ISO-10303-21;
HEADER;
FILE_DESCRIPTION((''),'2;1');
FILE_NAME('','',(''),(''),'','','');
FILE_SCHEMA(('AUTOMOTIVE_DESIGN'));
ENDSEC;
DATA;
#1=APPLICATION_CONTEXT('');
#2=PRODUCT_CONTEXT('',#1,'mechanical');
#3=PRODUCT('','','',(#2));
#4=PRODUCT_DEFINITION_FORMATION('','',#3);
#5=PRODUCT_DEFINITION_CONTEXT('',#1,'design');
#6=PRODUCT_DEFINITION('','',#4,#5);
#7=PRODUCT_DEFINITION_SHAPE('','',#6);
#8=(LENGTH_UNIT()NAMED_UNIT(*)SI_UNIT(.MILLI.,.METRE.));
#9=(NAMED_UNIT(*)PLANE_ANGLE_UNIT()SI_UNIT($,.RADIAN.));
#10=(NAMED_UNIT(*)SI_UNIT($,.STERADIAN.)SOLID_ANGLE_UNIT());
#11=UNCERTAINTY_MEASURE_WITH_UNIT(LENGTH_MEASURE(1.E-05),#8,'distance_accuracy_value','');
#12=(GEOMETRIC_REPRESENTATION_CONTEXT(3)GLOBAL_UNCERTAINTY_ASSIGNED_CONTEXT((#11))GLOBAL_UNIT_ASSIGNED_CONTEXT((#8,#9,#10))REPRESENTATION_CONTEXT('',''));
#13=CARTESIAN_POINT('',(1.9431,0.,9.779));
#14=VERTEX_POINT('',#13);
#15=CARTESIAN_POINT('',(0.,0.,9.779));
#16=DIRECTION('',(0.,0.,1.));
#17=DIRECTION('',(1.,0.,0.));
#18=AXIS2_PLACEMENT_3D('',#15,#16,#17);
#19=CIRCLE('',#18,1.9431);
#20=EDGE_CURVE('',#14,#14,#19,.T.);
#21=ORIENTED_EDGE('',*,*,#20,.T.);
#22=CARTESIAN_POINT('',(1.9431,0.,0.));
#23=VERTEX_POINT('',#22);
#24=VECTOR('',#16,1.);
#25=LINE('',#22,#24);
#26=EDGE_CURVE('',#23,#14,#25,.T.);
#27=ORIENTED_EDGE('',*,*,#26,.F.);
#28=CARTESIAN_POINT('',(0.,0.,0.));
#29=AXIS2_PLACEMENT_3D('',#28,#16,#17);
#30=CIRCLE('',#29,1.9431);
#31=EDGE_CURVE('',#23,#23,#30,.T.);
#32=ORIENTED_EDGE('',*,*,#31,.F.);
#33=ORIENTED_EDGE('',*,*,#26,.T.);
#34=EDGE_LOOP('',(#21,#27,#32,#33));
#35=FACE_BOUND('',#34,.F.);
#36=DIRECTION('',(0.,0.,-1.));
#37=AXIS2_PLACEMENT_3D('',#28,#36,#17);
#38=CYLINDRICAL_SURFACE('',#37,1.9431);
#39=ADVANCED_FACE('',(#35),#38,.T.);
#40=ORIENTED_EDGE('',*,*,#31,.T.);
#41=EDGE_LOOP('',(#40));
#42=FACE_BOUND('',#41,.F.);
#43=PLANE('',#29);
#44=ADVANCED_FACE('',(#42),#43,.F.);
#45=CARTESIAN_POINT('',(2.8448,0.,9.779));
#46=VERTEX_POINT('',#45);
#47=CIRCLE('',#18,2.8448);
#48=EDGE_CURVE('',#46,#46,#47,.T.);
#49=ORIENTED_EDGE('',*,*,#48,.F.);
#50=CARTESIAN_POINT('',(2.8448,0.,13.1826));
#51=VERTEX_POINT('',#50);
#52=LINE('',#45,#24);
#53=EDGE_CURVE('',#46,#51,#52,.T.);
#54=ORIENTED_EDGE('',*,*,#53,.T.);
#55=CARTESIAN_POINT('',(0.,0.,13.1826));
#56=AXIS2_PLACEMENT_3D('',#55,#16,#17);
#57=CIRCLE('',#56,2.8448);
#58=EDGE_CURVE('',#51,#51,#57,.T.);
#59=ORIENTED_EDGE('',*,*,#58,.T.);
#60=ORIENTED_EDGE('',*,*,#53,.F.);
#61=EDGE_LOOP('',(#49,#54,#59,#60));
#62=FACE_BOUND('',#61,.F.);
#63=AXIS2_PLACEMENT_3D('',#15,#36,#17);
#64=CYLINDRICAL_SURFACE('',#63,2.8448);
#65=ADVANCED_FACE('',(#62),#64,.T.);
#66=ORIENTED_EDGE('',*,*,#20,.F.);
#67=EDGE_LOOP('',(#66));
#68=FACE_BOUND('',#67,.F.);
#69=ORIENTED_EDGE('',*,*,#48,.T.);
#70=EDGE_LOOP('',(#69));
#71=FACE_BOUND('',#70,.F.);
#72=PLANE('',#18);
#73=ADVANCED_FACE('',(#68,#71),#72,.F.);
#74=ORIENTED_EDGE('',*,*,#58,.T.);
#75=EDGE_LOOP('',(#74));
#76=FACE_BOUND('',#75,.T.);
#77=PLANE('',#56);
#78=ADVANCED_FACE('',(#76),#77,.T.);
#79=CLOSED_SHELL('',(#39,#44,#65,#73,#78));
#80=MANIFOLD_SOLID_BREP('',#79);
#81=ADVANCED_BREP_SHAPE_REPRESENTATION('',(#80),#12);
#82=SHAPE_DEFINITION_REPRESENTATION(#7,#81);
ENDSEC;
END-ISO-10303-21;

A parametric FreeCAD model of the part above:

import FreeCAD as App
import Part
import Sketcher
Q = App.Units.Quantity

doc = App.newDocument("Part")
body = doc.addObject("PartDesign::Body", "Body")

sketch1 = doc.addObject("Sketcher::SketchObject", "Sketch")
body.addObject(sketch1)
sketch1.AttachmentSupport = (doc.XY_Plane, [""])
sketch1.MapMode = "FlatFace"
sketch1.addGeometry(Part.Circle(App.Vector(0, 0, 0), App.Vector(0, 0, 1), 1.9431), False)
sketch1.addConstraint(Sketcher.Constraint("Coincident", 0, 3, -1, 1))
sketch1.addConstraint(Sketcher.Constraint("Diameter", 0, Q("0.153 in")))
pad1 = doc.addObject("PartDesign::Pad", "Pad")
body.addObject(pad1)
pad1.Profile = sketch1
pad1.Length = Q("0.385 in")

sketch2 = doc.addObject("Sketcher::SketchObject", "Sketch001")
body.addObject(sketch2)
sketch2.AttachmentSupport = (doc.XY_Plane, [""])
sketch2.MapMode = "FlatFace"
sketch2.AttachmentOffset = App.Placement(App.Vector(0, 0, 0.385 * 25.4), App.Rotation())
sketch2.addGeometry(Part.Circle(App.Vector(0, 0, 0), App.Vector(0, 0, 1), 2.8448), False)
sketch2.addConstraint(Sketcher.Constraint("Coincident", 0, 3, -1, 1))
sketch2.addConstraint(Sketcher.Constraint("Diameter", 0, Q("0.224 in")))
pad2 = doc.addObject("PartDesign::Pad", "Pad001")
body.addObject(pad2)
pad2.Profile = sketch2
pad2.Length = Q("0.134 in")

doc.recompute()
